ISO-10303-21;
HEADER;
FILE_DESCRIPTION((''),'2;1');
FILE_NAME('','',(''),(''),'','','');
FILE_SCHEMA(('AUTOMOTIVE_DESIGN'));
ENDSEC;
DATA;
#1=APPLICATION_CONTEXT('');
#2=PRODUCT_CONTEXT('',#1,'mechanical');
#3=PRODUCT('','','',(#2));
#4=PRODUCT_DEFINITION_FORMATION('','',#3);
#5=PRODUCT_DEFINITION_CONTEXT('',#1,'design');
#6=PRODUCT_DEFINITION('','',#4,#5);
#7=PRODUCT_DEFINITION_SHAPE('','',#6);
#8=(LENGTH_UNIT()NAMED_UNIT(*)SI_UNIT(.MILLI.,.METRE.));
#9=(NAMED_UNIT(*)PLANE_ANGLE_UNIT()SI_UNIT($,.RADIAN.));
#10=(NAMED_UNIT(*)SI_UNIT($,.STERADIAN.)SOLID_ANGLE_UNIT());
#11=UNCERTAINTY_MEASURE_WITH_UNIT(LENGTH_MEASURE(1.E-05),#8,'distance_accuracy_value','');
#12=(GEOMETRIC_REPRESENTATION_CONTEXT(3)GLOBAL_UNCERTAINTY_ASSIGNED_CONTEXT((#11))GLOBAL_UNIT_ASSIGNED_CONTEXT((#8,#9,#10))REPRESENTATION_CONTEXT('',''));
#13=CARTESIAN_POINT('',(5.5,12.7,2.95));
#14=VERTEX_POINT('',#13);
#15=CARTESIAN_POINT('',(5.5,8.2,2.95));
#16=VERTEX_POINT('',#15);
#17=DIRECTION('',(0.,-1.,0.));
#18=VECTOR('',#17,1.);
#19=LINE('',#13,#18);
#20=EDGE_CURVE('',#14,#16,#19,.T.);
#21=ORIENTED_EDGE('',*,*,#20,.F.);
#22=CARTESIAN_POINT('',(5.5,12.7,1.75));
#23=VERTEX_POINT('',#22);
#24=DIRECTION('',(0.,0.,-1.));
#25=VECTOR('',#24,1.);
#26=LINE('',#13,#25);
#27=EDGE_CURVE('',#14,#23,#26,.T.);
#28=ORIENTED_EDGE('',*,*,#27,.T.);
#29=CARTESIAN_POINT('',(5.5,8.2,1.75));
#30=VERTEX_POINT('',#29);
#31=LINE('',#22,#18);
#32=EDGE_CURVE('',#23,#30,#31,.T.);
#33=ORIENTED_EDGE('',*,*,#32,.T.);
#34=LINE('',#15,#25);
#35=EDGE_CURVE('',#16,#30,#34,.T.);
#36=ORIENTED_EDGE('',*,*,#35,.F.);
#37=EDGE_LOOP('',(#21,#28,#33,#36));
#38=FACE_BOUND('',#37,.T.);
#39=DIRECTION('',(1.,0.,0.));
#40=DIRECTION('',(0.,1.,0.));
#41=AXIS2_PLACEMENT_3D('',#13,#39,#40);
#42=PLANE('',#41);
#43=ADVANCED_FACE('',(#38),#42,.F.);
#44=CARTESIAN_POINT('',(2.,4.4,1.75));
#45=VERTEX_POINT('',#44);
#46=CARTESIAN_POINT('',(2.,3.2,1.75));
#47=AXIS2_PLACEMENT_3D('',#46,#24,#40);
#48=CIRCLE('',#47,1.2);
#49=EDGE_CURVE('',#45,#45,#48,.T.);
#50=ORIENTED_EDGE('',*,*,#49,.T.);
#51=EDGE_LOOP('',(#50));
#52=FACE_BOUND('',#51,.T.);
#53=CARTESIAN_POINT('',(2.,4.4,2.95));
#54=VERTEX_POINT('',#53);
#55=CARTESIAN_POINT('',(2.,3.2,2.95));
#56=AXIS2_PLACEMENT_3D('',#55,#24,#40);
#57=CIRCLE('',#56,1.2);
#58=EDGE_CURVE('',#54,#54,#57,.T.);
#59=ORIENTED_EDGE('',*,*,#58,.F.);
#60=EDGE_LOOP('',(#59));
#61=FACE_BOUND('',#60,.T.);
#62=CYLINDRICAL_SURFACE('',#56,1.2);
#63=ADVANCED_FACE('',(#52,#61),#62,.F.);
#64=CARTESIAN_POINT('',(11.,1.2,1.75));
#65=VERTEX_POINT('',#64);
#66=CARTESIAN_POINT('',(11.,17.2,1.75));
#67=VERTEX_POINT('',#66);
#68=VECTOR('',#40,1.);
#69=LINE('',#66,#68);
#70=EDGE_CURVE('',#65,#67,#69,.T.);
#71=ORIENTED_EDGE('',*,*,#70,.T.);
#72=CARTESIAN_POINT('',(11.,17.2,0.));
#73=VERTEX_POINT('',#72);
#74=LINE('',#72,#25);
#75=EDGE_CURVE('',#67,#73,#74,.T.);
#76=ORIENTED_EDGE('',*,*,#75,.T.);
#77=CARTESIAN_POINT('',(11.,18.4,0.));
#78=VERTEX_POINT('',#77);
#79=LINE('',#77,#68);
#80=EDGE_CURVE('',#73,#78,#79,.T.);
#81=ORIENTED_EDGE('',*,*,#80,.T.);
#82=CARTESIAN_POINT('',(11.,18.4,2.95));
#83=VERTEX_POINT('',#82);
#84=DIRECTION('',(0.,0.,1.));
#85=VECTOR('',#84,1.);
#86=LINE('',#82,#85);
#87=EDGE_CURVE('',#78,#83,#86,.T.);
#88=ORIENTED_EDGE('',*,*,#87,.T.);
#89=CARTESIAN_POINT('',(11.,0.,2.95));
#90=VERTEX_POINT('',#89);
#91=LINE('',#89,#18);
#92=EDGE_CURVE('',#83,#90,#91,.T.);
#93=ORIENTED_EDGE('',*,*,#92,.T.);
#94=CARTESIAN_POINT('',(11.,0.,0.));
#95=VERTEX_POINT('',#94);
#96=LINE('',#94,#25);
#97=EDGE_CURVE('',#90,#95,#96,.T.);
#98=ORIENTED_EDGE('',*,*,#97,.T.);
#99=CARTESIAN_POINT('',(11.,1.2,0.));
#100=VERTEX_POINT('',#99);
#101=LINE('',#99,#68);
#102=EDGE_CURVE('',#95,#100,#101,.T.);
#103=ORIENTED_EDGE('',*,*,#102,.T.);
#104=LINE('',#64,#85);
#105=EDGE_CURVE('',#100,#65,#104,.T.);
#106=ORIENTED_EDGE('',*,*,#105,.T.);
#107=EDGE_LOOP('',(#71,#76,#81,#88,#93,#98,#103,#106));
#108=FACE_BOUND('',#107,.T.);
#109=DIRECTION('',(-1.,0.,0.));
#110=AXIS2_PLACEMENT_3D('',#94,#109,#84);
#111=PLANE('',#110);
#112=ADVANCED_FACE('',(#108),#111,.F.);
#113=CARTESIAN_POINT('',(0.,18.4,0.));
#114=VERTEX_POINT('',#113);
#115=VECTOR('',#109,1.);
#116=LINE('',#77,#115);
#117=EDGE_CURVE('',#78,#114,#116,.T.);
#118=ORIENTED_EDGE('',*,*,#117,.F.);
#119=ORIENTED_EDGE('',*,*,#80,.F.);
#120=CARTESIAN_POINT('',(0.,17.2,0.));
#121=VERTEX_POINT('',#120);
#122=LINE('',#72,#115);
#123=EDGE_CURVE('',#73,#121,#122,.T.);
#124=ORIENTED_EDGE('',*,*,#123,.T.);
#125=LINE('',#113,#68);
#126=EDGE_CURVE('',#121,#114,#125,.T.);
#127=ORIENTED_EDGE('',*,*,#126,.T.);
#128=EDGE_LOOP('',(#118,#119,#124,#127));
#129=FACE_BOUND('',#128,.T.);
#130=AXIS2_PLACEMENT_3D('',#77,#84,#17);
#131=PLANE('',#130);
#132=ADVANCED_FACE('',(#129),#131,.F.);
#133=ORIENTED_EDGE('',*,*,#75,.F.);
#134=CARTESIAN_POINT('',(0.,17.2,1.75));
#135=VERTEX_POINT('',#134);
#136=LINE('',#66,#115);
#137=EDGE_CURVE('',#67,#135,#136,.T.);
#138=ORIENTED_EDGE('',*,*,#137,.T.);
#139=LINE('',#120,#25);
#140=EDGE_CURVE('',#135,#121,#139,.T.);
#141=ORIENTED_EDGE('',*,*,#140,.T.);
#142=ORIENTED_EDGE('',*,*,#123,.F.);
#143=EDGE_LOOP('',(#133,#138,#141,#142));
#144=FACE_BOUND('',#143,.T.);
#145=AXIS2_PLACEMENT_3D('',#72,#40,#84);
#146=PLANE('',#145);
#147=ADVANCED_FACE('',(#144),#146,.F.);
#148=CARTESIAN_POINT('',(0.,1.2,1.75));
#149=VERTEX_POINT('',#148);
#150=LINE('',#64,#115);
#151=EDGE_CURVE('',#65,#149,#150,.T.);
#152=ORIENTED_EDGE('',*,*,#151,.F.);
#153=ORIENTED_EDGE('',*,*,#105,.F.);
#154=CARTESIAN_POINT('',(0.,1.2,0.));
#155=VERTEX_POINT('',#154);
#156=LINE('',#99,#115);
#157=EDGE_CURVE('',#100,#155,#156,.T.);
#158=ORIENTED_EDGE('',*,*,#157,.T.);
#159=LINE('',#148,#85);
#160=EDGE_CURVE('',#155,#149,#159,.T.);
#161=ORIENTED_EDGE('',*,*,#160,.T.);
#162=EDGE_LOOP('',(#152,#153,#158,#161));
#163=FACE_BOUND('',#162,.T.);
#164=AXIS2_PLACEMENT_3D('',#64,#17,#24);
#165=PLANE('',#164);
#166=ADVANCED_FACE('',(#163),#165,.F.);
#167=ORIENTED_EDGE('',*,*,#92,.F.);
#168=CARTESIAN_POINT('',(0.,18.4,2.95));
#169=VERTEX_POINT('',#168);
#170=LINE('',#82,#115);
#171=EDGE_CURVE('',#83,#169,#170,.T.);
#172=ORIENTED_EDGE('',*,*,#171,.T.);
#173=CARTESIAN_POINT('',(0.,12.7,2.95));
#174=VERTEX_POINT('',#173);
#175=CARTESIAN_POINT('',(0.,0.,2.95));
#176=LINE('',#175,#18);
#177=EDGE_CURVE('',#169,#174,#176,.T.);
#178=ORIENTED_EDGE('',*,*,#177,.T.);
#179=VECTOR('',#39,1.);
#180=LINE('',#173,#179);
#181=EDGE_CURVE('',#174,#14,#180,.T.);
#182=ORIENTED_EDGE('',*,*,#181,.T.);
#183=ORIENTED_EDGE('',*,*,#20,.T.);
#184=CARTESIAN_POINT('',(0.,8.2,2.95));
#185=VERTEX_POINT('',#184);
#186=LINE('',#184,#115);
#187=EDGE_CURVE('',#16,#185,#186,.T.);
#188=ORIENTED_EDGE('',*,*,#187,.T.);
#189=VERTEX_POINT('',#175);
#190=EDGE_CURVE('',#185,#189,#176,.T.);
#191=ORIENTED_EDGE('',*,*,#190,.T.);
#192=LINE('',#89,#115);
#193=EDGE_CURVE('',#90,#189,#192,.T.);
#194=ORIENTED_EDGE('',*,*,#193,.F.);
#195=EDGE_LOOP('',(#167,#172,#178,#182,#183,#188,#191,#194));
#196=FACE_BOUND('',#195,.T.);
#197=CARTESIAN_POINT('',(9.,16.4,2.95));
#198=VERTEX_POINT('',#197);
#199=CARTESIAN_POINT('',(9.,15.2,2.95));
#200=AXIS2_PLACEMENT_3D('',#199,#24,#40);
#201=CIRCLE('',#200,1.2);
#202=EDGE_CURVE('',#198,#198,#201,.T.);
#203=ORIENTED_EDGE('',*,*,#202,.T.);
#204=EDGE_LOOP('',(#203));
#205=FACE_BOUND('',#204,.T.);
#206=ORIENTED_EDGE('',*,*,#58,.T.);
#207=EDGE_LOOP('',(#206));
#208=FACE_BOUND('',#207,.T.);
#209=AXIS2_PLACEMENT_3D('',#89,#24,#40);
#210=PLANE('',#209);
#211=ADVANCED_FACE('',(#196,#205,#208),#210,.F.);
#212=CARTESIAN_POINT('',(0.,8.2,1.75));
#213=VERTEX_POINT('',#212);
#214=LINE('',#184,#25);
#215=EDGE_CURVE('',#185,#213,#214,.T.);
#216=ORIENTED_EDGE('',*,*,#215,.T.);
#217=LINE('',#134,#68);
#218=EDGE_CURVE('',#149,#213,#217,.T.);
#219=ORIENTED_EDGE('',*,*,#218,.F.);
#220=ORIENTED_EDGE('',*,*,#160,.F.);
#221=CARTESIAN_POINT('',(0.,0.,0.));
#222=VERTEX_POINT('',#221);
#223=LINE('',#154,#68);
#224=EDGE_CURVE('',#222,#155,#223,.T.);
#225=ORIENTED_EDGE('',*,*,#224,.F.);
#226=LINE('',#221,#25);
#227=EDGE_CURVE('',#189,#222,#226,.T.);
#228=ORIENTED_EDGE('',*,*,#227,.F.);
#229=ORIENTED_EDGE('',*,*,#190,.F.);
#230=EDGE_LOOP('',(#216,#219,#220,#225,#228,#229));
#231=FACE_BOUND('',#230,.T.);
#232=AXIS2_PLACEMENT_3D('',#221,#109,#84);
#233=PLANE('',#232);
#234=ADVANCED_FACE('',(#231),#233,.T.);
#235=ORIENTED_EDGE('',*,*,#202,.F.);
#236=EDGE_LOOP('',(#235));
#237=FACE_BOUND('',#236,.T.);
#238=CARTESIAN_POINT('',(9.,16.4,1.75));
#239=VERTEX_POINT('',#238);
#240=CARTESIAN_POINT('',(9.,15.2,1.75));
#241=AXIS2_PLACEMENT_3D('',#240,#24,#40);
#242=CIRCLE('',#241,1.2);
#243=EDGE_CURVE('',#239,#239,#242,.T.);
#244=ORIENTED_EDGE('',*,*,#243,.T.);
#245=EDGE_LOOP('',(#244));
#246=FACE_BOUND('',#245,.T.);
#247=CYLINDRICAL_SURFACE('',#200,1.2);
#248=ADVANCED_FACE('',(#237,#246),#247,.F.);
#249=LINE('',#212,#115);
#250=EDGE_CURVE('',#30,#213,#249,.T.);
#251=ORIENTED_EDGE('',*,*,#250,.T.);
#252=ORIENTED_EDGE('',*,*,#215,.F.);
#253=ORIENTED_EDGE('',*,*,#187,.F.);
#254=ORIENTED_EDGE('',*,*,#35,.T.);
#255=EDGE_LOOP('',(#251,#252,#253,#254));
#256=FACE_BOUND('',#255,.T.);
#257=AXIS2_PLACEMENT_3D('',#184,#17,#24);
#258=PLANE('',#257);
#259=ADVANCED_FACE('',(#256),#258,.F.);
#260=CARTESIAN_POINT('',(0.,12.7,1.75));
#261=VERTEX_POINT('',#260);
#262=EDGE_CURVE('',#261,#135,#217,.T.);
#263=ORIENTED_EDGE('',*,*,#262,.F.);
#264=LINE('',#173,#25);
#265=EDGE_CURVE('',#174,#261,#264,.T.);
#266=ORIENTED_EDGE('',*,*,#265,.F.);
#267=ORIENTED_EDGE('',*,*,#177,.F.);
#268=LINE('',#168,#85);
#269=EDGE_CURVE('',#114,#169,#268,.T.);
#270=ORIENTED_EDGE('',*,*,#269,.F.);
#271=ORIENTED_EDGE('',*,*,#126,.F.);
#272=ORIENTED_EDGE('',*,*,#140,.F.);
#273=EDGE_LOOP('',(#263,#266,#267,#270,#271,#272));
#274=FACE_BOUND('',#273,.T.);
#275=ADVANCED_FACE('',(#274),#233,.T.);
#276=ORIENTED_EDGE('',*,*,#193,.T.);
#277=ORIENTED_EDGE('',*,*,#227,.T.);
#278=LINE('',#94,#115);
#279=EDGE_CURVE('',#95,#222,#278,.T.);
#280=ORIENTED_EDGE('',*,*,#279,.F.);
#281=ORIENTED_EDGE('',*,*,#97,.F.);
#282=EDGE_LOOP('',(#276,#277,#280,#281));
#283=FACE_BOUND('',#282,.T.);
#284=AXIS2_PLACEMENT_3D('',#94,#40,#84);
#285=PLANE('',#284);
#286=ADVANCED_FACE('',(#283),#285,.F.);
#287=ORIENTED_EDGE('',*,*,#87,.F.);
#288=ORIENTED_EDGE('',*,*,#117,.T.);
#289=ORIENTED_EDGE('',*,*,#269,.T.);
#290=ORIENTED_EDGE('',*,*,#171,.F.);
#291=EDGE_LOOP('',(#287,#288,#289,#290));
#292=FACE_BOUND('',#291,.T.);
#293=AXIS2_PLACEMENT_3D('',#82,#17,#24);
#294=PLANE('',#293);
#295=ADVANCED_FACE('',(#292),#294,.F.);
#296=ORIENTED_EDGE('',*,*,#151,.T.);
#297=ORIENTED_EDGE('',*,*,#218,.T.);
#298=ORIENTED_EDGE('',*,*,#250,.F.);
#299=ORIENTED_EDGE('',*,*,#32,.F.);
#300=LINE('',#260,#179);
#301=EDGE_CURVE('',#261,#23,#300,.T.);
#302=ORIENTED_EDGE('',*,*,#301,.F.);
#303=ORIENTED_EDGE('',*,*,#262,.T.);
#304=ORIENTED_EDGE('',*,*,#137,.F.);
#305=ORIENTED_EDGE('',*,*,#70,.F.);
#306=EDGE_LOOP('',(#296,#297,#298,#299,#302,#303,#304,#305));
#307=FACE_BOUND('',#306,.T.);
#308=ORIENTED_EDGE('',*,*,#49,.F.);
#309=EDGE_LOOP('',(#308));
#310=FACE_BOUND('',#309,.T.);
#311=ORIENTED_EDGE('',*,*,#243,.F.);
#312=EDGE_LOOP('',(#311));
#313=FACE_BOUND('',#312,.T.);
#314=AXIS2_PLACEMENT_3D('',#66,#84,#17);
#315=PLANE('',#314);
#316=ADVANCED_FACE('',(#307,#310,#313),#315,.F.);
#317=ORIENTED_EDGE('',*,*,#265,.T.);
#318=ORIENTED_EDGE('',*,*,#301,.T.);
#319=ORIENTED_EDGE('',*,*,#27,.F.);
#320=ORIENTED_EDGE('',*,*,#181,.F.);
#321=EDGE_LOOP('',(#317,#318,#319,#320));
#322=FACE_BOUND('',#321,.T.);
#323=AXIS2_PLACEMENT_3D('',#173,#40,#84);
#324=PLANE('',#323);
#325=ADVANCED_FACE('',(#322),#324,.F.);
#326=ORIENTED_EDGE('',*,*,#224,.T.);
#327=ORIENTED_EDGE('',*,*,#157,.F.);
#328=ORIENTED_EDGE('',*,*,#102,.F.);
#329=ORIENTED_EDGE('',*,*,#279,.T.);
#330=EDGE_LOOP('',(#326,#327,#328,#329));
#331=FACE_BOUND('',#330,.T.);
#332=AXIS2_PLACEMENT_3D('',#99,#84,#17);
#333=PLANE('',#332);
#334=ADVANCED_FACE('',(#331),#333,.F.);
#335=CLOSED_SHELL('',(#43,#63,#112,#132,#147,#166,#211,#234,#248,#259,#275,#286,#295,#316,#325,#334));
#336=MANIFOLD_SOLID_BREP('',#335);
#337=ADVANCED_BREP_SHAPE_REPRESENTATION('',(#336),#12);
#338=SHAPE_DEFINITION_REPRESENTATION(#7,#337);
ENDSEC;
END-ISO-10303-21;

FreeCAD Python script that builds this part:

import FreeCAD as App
import Part
import Sketcher

doc = App.newDocument("Part")
body = doc.addObject("PartDesign::Body", "Body")

sketch1 = doc.addObject("Sketcher::SketchObject", "Sketch")
body.addObject(sketch1)
sketch1.AttachmentSupport = (doc.YZ_Plane, [""])
sketch1.MapMode = "FlatFace"
sketch1.addGeometry([
    Part.LineSegment(App.Vector(0, 3, 0), App.Vector(0, 0, 0)),
    Part.LineSegment(App.Vector(0, 0, 0), App.Vector(1.2, 0, 0)),
    Part.LineSegment(App.Vector(1.2, 0, 0), App.Vector(1.2, 1.8, 0)),
    Part.LineSegment(App.Vector(1.2, 1.8, 0), App.Vector(17.2, 1.8, 0)),
    Part.LineSegment(App.Vector(17.2, 1.8, 0), App.Vector(17.2, 0, 0)),
    Part.LineSegment(App.Vector(17.2, 0, 0), App.Vector(18.4, 0, 0)),
    Part.LineSegment(App.Vector(18.4, 0, 0), App.Vector(18.4, 3, 0)),
    Part.LineSegment(App.Vector(18.4, 3, 0), App.Vector(0, 3, 0)),
], False)
sketch1.addConstraint([
    Sketcher.Constraint("Coincident", 0, 2, 1, 1),
    Sketcher.Constraint("Coincident", 1, 2, 2, 1),
    Sketcher.Constraint("Coincident", 2, 2, 3, 1),
    Sketcher.Constraint("Coincident", 3, 2, 4, 1),
    Sketcher.Constraint("Coincident", 4, 2, 5, 1),
    Sketcher.Constraint("Coincident", 5, 2, 6, 1),
    Sketcher.Constraint("Coincident", 6, 2, 7, 1),
    Sketcher.Constraint("Coincident", 7, 2, 0, 1),
    Sketcher.Constraint("Vertical", 0),
    Sketcher.Constraint("Horizontal", 1),
    Sketcher.Constraint("Vertical", 2),
    Sketcher.Constraint("Horizontal", 3),
    Sketcher.Constraint("Vertical", 4),
    Sketcher.Constraint("Horizontal", 5),
    Sketcher.Constraint("Vertical", 6),
    Sketcher.Constraint("Horizontal", 7),
    Sketcher.Constraint("Coincident", 0, 2, -1, 1),
    Sketcher.Constraint("PointOnObject", 4, 2, -1),
    Sketcher.Constraint("Equal", 1, 5),
    Sketcher.Constraint("DistanceX", 3, 1, 3, 2, 16.0),
    Sketcher.Constraint("DistanceX", 1, 1, 1, 2, 1.2),
    Sketcher.Constraint("DistanceY", 0, 2, 0, 1, 2.95),
    Sketcher.Constraint("DistanceY", 2, 1, 2, 2, 1.75),
])
pad1 = doc.addObject("PartDesign::Pad", "Pad")
body.addObject(pad1)
pad1.Profile = sketch1
pad1.Length = 11

sketch2 = doc.addObject("Sketcher::SketchObject", "Sketch001")
body.addObject(sketch2)
sketch2.AttachmentSupport = (doc.XY_Plane, [""])
sketch2.MapMode = "FlatFace"
sketch2.AttachmentOffset = App.Placement(App.Vector(0, 0, 1.75), App.Rotation())
sketch2.addGeometry([
    Part.Circle(App.Vector(9, 15.2, 0), App.Vector(0, 0, 1), 1.2),
    Part.Circle(App.Vector(2, 3.2, 0), App.Vector(0, 0, 1), 1.2),
    Part.LineSegment(App.Vector(5.5, 12.7, 0), App.Vector(5.5, 8.2, 0)),
    Part.LineSegment(App.Vector(5.5, 8.2, 0), App.Vector(0, 8.2, 0)),
    Part.LineSegment(App.Vector(0, 8.2, 0), App.Vector(0, 12.7, 0)),
    Part.LineSegment(App.Vector(0, 12.7, 0), App.Vector(5.5, 12.7, 0)),
], False)
sketch2.addConstraint([
    Sketcher.Constraint("Coincident", 2, 2, 3, 1),
    Sketcher.Constraint("Coincident", 3, 2, 4, 1),
    Sketcher.Constraint("Coincident", 4, 2, 5, 1),
    Sketcher.Constraint("Coincident", 5, 2, 2, 1),
    Sketcher.Constraint("Vertical", 2),
    Sketcher.Constraint("Horizontal", 3),
    Sketcher.Constraint("Vertical", 4),
    Sketcher.Constraint("Horizontal", 5),
    Sketcher.Constraint("Equal", 0, 1),
    Sketcher.Constraint("PointOnObject", 3, 2, -2),
    Sketcher.Constraint("Diameter", 0, 2.4),
    Sketcher.Constraint("DistanceX", 3, 2, 3, 1, 5.5),
    Sketcher.Constraint("DistanceY", 2, 2, 2, 1, 4.5),
    Sketcher.Constraint("DistanceX", -1, 1, 0, 3, 9.0),
    Sketcher.Constraint("DistanceX", -1, 1, 1, 3, 2.0),
    Sketcher.Constraint("DistanceY", 1, 3, 0, 3, 12.0),
    Sketcher.Constraint("DistanceY", 1, 3, 2, 2, 5.0),
    Sketcher.Constraint("DistanceY", -1, 1, 0, 3, 15.2),
])
pocket1 = doc.addObject("PartDesign::Pocket", "Pocket")
body.addObject(pocket1)
pocket1.Profile = sketch2
pocket1.Type = "ThroughAll"
pocket1.Reversed = True

doc.recompute()
